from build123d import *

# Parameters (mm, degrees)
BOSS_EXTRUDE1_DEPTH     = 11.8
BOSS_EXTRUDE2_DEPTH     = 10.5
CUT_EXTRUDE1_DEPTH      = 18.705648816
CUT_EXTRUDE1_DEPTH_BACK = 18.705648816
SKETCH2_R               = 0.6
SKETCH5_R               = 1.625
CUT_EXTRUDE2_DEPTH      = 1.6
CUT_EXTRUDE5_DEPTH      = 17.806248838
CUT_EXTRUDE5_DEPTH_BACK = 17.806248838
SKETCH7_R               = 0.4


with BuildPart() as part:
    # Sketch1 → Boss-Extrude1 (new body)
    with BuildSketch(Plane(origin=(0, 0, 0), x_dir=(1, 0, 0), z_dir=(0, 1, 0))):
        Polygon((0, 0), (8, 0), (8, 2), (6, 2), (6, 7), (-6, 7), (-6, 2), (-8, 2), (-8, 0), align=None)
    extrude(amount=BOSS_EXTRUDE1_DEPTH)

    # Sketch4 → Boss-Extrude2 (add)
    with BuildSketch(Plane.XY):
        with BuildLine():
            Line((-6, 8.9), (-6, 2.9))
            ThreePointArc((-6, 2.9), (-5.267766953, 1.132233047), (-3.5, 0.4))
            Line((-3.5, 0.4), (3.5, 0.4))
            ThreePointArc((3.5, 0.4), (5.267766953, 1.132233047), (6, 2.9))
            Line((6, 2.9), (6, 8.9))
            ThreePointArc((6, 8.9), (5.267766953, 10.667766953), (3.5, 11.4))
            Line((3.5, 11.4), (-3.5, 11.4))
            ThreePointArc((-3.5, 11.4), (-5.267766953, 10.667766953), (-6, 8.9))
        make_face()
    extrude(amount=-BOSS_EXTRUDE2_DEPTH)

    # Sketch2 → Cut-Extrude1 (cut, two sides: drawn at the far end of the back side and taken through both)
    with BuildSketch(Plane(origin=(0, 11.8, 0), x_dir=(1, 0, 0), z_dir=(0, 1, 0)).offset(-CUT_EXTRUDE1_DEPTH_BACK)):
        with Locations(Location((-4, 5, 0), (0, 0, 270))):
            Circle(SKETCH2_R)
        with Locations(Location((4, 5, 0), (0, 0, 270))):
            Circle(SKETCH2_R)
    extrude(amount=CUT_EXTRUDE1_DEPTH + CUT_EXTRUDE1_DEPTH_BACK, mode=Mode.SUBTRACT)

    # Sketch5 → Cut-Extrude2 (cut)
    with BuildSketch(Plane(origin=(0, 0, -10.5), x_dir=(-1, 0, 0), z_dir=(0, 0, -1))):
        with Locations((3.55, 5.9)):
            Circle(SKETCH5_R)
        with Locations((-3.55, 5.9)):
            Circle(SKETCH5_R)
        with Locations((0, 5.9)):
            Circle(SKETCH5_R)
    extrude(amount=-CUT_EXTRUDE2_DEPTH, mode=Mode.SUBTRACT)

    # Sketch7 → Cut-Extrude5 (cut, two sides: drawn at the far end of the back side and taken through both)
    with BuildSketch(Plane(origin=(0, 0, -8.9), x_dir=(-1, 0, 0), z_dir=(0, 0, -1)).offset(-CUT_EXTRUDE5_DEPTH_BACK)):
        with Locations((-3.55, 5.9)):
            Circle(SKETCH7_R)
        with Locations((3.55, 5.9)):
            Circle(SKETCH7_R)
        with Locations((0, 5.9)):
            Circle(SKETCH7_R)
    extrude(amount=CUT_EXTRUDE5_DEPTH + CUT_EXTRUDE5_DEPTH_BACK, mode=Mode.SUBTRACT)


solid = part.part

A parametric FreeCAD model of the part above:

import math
import FreeCAD as App
import Part
import Sketcher


def add_polygon(sketch, points):
    """Adds a closed chain of lines whose ends are joined by coincident constraints."""
    first, n = sketch.GeometryCount, len(points)
    for a, b in zip(points, points[1:] + points[:1]):
        sketch.addGeometry(Part.LineSegment(App.Vector(*a, 0), App.Vector(*b, 0)), False)
    for i in range(n):
        sketch.addConstraint(Sketcher.Constraint("Coincident", first + i, 2, first + (i + 1) % n, 1))

doc = App.newDocument("Part")
body = doc.addObject("PartDesign::Body", "Body")

# Sketch on XZ plane
sketch1 = body.newObject("Sketcher::SketchObject", "Sketch")
sketch1.AttachmentSupport = (doc.getObject("XZ_Plane"), [""])
sketch1.MapMode = "FlatFace"
add_polygon(sketch1, [(8, 0), (8, -2), (6, -2), (6, -7), (-6, -7), (-6, -2), (-8, -2), (-8, 0)])  # lines 0-7
sketch1.addConstraint(Sketcher.Constraint("Vertical", 0))
sketch1.addConstraint(Sketcher.Constraint("Horizontal", 1))
sketch1.addConstraint(Sketcher.Constraint("Vertical", 2))
sketch1.addConstraint(Sketcher.Constraint("Horizontal", 3))
sketch1.addConstraint(Sketcher.Constraint("Vertical", 4))
sketch1.addConstraint(Sketcher.Constraint("Horizontal", 5))
sketch1.addConstraint(Sketcher.Constraint("Vertical", 6))
sketch1.addConstraint(Sketcher.Constraint("Horizontal", 7))
sketch1.addConstraint(Sketcher.Constraint("Symmetric", 6, 2, 7, 2, -1, 1))
sketch1.addConstraint(Sketcher.Constraint("Symmetric", 1, 2, 4, 2, -2))
sketch1.addConstraint(Sketcher.Constraint("Equal", 5, 0))
sketch1.addConstraint(Sketcher.Constraint("DistanceX", 1, 2, 1, 1, 2.0))
sketch1.addConstraint(Sketcher.Constraint("DistanceX", 3, 2, 3, 1, 12.0))
sketch1.addConstraint(Sketcher.Constraint("DistanceY", 2, 2, 2, 1, 5.0))
pad1 = body.newObject("PartDesign::Pad", "Pad")
pad1.Profile = sketch1
pad1.Length = 11.8
pad1.Reversed = True

# Sketch on XY plane
sketch2 = body.newObject("Sketcher::SketchObject", "Sketch001")
sketch2.AttachmentSupport = (doc.getObject("XY_Plane"), [""])
sketch2.MapMode = "FlatFace"
sketch2.addGeometry(Part.LineSegment(App.Vector(-6, 8.9, 0), App.Vector(-6, 2.9, 0)), False)
sketch2.addGeometry(Part.ArcOfCircle(Part.Circle(App.Vector(-3.5, 2.9, 0), App.Vector(0, 0, 1), 2.5), math.radians(180), math.radians(270)), False)
sketch2.addGeometry(Part.LineSegment(App.Vector(-3.5, 0.4, 0), App.Vector(3.5, 0.4, 0)), False)
sketch2.addGeometry(Part.ArcOfCircle(Part.Circle(App.Vector(3.5, 2.9, 0), App.Vector(0, 0, 1), 2.5), math.radians(-90), math.radians(0)), False)
sketch2.addGeometry(Part.LineSegment(App.Vector(6, 2.9, 0), App.Vector(6, 8.9, 0)), False)
sketch2.addGeometry(Part.ArcOfCircle(Part.Circle(App.Vector(3.5, 8.9, 0), App.Vector(0, 0, 1), 2.5), math.radians(0), math.radians(90)), False)
sketch2.addGeometry(Part.LineSegment(App.Vector(3.5, 11.4, 0), App.Vector(-3.5, 11.4, 0)), False)
sketch2.addGeometry(Part.ArcOfCircle(Part.Circle(App.Vector(-3.5, 8.9, 0), App.Vector(0, 0, 1), 2.5), math.radians(90), math.radians(180)), False)
sketch2.addConstraint(Sketcher.Constraint("Tangent", 0, 2, 1, 1))
sketch2.addConstraint(Sketcher.Constraint("Tangent", 1, 2, 2, 1))
sketch2.addConstraint(Sketcher.Constraint("Tangent", 2, 2, 3, 1))
sketch2.addConstraint(Sketcher.Constraint("Tangent", 3, 2, 4, 1))
sketch2.addConstraint(Sketcher.Constraint("Tangent", 4, 2, 5, 1))
sketch2.addConstraint(Sketcher.Constraint("Tangent", 5, 2, 6, 1))
sketch2.addConstraint(Sketcher.Constraint("Tangent", 6, 2, 7, 1))
sketch2.addConstraint(Sketcher.Constraint("Tangent", 7, 2, 0, 1))
sketch2.addConstraint(Sketcher.Constraint("Vertical", 0))
sketch2.addConstraint(Sketcher.Constraint("Horizontal", 2))
sketch2.addConstraint(Sketcher.Constraint("Vertical", 4))
sketch2.addConstraint(Sketcher.Constraint("Horizontal", 6))
sketch2.addConstraint(Sketcher.Constraint("Equal", 1, 3))
sketch2.addConstraint(Sketcher.Constraint("Equal", 3, 5))
sketch2.addConstraint(Sketcher.Constraint("Equal", 5, 7))
sketch2.addConstraint(Sketcher.Constraint("Radius", 1, 2.5))
sketch2.addConstraint(Sketcher.Constraint("DistanceX", 2, 1, 2, 2, 7.0))
sketch2.addConstraint(Sketcher.Constraint("DistanceY", 0, 2, 0, 1, 6.0))
sketch2.addConstraint(Sketcher.Constraint("DistanceX", 0, 2, -1, 1, 6.0))
sketch2.addConstraint(Sketcher.Constraint("DistanceY", -1, 1, 1, 3, 2.9))
pad2 = body.newObject("PartDesign::Pad", "Pad001")
pad2.Profile = sketch2
pad2.Length = 10.5
pad2.Reversed = True

# Sketch on XZ plane
sketch3 = body.newObject("Sketcher::SketchObject", "Sketch002")
sketch3.AttachmentSupport = (doc.getObject("XZ_Plane"), [""])
sketch3.MapMode = "FlatFace"
sketch3.AttachmentOffset = App.Placement(App.Vector(0, 0, -11.8), App.Rotation())
sketch3.addGeometry(Part.Circle(App.Vector(-4, -5, 0), App.Vector(0, 0, 1), 0.6), False)
sketch3.addGeometry(Part.Circle(App.Vector(4, -5, 0), App.Vector(0, 0, 1), 0.6), False)
sketch3.addConstraint(Sketcher.Constraint("Equal", 0, 1))
sketch3.addConstraint(Sketcher.Constraint("Symmetric", 0, 3, 1, 3, -2))
sketch3.addConstraint(Sketcher.Constraint("Diameter", 0, 1.2))
sketch3.addConstraint(Sketcher.Constraint("DistanceX", 0, 3, -1, 1, 4.0))
sketch3.addConstraint(Sketcher.Constraint("DistanceY", 0, 3, -1, 1, 5.0))
pocket1 = body.newObject("PartDesign::Pocket", "Pocket")
pocket1.Profile = sketch3
pocket1.Type = "ThroughAll"
pocket1.Midplane = True

# Sketch on XY plane
sketch4 = body.newObject("Sketcher::SketchObject", "Sketch003")
sketch4.AttachmentSupport = (doc.getObject("XY_Plane"), [""])
sketch4.MapMode = "FlatFace"
sketch4.AttachmentOffset = App.Placement(App.Vector(0, 0, -10.5), App.Rotation())
sketch4.addGeometry(Part.Circle(App.Vector(-3.5, 5.9, 0), App.Vector(0, 0, 1), 1.6), False)
sketch4.addGeometry(Part.Circle(App.Vector(3.5, 5.9, 0), App.Vector(0, 0, 1), 1.6), False)
sketch4.addGeometry(Part.Circle(App.Vector(0, 5.9, 0), App.Vector(0, 0, 1), 1.6), False)
sketch4.addConstraint(Sketcher.Constraint("Equal", 0, 1))
sketch4.addConstraint(Sketcher.Constraint("Equal", 1, 2))
sketch4.addConstraint(Sketcher.Constraint("Symmetric", 0, 3, 1, 3, -2))
sketch4.addConstraint(Sketcher.Constraint("PointOnObject", 2, 3, -2))
sketch4.addConstraint(Sketcher.Constraint("Horizontal", 1, 3, 2, 3))
sketch4.addConstraint(Sketcher.Constraint("Diameter", 0, 3.25))
sketch4.addConstraint(Sketcher.Constraint("DistanceY", -1, 1, 0, 3, 5.9))
sketch4.addConstraint(Sketcher.Constraint("DistanceX", 0, 3, 1, 3, 7.1))
pocket2 = body.newObject("PartDesign::Pocket", "Pocket001")
pocket2.Profile = sketch4
pocket2.Length = 1.6
pocket2.Reversed = True

# Sketch on XY plane
sketch5 = body.newObject("Sketcher::SketchObject", "Sketch004")
sketch5.AttachmentSupport = (doc.getObject("XY_Plane"), [""])
sketch5.MapMode = "FlatFace"
sketch5.AttachmentOffset = App.Placement(App.Vector(0, 0, -8.9), App.Rotation())
sketch5.addGeometry(Part.Circle(App.Vector(3.55, 5.9, 0), App.Vector(0, 0, 1), 0.4), False)
sketch5.addGeometry(Part.Circle(App.Vector(-3.55, 5.9, 0), App.Vector(0, 0, 1), 0.4), False)
sketch5.addGeometry(Part.Circle(App.Vector(0, 5.9, 0), App.Vector(0, 0, 1), 0.4), False)
sketch5.addConstraint(Sketcher.Constraint("Equal", 0, 1))
sketch5.addConstraint(Sketcher.Constraint("Equal", 1, 2))
sketch5.addConstraint(Sketcher.Constraint("Symmetric", 0, 3, 1, 3, -2))
sketch5.addConstraint(Sketcher.Constraint("PointOnObject", 2, 3, -2))
sketch5.addConstraint(Sketcher.Constraint("Horizontal", 1, 3, 2, 3))
sketch5.addConstraint(Sketcher.Constraint("Diameter", 0, 0.8))
sketch5.addConstraint(Sketcher.Constraint("DistanceY", -1, 1, 0, 3, 5.9))
sketch5.addConstraint(Sketcher.Constraint("DistanceX", 1, 3, 0, 3, 7.1))
pocket3 = body.newObject("PartDesign::Pocket", "Pocket002")
pocket3.Profile = sketch5
pocket3.Type = "ThroughAll"
pocket3.Midplane = True

doc.recompute()
